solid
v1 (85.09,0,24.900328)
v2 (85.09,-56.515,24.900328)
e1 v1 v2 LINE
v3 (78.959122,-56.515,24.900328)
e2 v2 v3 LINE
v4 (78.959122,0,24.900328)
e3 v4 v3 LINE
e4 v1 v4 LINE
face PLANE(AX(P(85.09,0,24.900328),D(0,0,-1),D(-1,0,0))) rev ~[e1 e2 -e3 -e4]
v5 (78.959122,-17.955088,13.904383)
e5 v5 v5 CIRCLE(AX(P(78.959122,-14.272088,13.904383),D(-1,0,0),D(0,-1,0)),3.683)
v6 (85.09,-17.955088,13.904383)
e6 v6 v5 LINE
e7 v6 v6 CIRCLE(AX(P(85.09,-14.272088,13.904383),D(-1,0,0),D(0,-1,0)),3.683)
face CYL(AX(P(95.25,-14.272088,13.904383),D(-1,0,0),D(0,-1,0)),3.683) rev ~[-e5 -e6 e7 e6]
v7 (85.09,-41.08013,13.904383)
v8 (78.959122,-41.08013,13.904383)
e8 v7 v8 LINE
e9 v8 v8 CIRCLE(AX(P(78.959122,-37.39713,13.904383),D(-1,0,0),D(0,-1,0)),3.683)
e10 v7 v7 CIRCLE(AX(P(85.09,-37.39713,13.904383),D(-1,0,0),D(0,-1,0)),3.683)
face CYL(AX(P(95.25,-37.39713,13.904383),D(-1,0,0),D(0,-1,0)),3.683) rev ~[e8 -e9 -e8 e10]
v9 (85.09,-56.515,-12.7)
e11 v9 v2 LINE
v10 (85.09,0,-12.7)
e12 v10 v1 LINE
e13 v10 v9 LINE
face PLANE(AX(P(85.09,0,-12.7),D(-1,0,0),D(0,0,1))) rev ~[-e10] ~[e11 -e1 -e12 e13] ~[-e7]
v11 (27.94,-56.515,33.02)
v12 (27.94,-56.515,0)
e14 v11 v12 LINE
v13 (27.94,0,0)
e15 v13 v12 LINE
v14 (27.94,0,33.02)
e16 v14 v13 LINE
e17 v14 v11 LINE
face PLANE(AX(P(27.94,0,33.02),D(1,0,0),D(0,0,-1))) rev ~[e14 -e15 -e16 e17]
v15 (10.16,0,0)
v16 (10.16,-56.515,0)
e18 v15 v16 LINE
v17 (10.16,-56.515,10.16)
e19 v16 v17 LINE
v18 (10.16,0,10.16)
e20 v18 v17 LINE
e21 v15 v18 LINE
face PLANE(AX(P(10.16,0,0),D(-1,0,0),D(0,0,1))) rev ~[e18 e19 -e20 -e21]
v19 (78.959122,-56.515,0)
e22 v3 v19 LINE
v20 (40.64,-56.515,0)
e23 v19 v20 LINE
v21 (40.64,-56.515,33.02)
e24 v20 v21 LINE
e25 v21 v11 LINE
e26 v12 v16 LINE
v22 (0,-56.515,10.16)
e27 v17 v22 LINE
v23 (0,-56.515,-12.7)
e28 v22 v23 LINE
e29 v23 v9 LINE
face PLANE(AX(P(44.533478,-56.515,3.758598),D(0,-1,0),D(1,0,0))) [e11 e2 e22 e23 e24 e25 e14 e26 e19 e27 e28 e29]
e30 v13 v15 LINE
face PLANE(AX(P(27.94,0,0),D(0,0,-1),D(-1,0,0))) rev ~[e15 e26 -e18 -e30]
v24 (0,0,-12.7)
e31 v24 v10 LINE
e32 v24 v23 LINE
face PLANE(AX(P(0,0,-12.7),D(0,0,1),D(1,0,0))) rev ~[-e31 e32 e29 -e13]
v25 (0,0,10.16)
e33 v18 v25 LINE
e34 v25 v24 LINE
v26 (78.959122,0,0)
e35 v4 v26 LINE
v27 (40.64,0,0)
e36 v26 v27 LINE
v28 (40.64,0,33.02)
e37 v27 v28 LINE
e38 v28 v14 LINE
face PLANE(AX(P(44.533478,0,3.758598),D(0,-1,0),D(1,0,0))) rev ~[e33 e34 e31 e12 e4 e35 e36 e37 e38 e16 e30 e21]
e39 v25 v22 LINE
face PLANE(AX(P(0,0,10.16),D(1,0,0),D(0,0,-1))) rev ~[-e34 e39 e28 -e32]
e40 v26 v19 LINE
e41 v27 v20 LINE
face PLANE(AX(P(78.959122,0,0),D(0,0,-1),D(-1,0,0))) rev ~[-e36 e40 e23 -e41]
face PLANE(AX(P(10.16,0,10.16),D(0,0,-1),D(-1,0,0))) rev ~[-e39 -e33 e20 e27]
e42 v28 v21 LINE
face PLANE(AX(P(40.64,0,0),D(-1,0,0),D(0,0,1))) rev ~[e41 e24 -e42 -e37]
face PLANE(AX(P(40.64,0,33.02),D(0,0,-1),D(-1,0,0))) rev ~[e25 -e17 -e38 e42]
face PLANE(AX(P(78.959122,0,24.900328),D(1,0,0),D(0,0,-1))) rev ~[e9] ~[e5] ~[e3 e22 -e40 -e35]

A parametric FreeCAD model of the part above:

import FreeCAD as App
import Part
import Sketcher
from FreeCAD import Vector
Q = App.Units.Quantity


def add_polygon(sketch, points):
    """Adds a closed chain of lines whose ends are joined by coincident constraints."""
    first, n = sketch.GeometryCount, len(points)
    for a, b in zip(points, points[1:] + points[:1]):
        sketch.addGeometry(Part.LineSegment(App.Vector(*a, 0), App.Vector(*b, 0)), False)
    for i in range(n):
        sketch.addConstraint(Sketcher.Constraint("Coincident", first + i, 2, first + (i + 1) % n, 1))

doc = App.newDocument("Part")
body = doc.addObject("PartDesign::Body", "Body")

sketch1 = body.newObject("Sketcher::SketchObject", "Sketch")
sketch1.AttachmentSupport = (doc.getObject("XZ_Plane"), [""])
sketch1.MapMode = "FlatFace"
add_polygon(sketch1, [(27.94, 0), (10.16, 0), (10.16, 10.16), (0, 10.16), (0, -12.7), (85.09, -12.7), (85.09, 24.900328), (78.959122, 24.900328), (78.959122, 0), (40.64, 0), (40.64, 33.02), (27.94, 33.02)])
sketch1.addConstraint([
    Sketcher.Constraint("Horizontal", 0),
    Sketcher.Constraint("Vertical", 1),
    Sketcher.Constraint("Horizontal", 2),
    Sketcher.Constraint("Vertical", 3),
    Sketcher.Constraint("Horizontal", 4),
    Sketcher.Constraint("Vertical", 5),
    Sketcher.Constraint("Horizontal", 6),
    Sketcher.Constraint("Vertical", 7),
    Sketcher.Constraint("Horizontal", 8),
    Sketcher.Constraint("Vertical", 9),
    Sketcher.Constraint("Horizontal", 10),
    Sketcher.Constraint("Vertical", 11),
    Sketcher.Constraint("PointOnObject", 0, 2, -1),
    Sketcher.Constraint("PointOnObject", 2, 2, -2),
    Sketcher.Constraint("PointOnObject", 7, 2, -1),
    Sketcher.Constraint("Equal", 2, 1),
    Sketcher.Constraint("DistanceX", 0, 2, 0, 1, Q("0.7 in")),
    Sketcher.Constraint("DistanceX", 2, 2, 2, 1, Q("0.4 in")),
    Sketcher.Constraint("DistanceX", 10, 2, 10, 1, Q("0.5 in")),
    Sketcher.Constraint("DistanceY", 3, 2, 3, 1, Q("0.9 in")),
    Sketcher.Constraint("DistanceY", 9, 1, 9, 2, Q("1.3 in")),
    Sketcher.Constraint("DistanceX", 4, 1, 4, 2, Q("3.35 in")),
    Sketcher.Constraint("DistanceX", 6, 2, 6, 1, 6.130878),
    Sketcher.Constraint("DistanceY", 5, 1, 5, 2, 37.600328),
])
pad1 = body.newObject("PartDesign::Pad", "Pad")
pad1.Profile = sketch1
pad1.Length = Q("2.225 in")

sketch2 = body.newObject("Sketcher::SketchObject", "Sketch001")
sketch2.AttachmentSupport = (doc.getObject("YZ_Plane"), [""])
sketch2.MapMode = "FlatFace"
sketch2.AttachmentOffset = App.Placement(Vector(0, 0, 3.35 * 25.4), App.Rotation())
sketch2.addGeometry(Part.Circle(Vector(-37.39713, 13.904383, 0), Vector(0, 0, 1), 3.683), False)
sketch2.addConstraint([
    Sketcher.Constraint("Diameter", 0, Q("0.29 in")),
    Sketcher.Constraint("DistanceX", 0, 3, -1, 1, 37.39713),
    Sketcher.Constraint("DistanceY", -1, 1, 0, 3, 13.904383),
])
doc.recompute()
hole = body.newObject("PartDesign::Hole", "Hole")
hole.Profile = sketch2
hole.ThreadType = "None"
hole.Diameter = Q("0.29 in")
hole.DepthType = "Dimension"
hole.Depth = Q("0.4 in")
hole.DrillPoint = "Flat"

sketch3 = body.newObject("Sketcher::SketchObject", "Sketch002")
sketch3.AttachmentSupport = (doc.getObject("YZ_Plane"), [""])
sketch3.MapMode = "FlatFace"
sketch3.AttachmentOffset = App.Placement(Vector(0, 0, 3.35 * 25.4), App.Rotation())
sketch3.addGeometry(Part.Circle(Vector(-14.272088, 13.904383, 0), Vector(0, 0, 1), 3.683), False)
sketch3.addConstraint([
    Sketcher.Constraint("Diameter", 0, Q("0.29 in")),
    Sketcher.Constraint("DistanceX", 0, 3, -1, 1, 14.272088),
    Sketcher.Constraint("DistanceY", -1, 1, 0, 3, 13.904383),
])
doc.recompute()
hole2 = body.newObject("PartDesign::Hole", "Hole001")
hole2.Profile = sketch3
hole2.ThreadType = "None"
hole2.Diameter = Q("0.29 in")
hole2.DepthType = "Dimension"
hole2.Depth = Q("0.4 in")
hole2.DrillPoint = "Flat"

doc.recompute()
